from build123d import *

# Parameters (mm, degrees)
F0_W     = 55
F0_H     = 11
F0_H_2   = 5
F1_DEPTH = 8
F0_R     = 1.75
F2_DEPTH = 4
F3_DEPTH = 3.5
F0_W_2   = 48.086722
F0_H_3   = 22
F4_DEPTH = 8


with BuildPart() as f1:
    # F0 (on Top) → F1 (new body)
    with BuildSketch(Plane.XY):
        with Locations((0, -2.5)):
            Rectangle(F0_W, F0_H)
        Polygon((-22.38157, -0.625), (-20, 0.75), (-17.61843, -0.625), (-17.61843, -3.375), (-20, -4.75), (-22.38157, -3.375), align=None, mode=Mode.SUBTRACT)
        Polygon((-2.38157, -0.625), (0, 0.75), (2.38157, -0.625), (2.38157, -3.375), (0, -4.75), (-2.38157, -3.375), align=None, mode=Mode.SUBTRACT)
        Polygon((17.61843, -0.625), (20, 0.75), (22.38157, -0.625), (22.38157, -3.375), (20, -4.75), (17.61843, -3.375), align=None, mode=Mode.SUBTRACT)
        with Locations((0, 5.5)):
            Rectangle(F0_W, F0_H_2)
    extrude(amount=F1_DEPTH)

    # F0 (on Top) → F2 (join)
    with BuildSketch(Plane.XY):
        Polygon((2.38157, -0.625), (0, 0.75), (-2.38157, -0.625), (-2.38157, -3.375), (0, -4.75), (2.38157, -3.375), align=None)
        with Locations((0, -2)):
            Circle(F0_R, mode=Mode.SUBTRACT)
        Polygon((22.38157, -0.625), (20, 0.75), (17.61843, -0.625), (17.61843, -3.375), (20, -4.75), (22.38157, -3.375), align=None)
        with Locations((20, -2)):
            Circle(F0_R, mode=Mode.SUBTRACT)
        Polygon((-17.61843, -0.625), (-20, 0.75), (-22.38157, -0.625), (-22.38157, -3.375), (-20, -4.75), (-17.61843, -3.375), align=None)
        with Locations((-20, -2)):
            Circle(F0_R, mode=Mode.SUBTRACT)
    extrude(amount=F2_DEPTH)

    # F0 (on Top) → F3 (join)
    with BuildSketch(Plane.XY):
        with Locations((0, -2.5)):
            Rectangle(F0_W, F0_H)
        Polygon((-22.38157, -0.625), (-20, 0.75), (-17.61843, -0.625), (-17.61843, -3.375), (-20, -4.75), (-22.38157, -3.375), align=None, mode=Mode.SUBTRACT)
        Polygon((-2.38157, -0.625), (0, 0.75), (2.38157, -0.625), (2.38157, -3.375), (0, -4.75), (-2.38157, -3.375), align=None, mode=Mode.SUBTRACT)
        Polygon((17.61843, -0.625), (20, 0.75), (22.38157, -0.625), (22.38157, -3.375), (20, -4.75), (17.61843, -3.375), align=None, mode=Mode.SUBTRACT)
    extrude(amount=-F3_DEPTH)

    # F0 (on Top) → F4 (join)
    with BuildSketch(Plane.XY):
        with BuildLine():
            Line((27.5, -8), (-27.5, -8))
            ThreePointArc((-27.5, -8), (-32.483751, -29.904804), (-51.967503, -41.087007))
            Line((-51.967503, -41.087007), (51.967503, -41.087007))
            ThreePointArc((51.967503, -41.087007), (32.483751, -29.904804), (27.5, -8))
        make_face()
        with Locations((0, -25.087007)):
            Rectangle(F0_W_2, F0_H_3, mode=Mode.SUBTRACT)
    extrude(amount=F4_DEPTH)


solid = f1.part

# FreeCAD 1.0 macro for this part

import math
import FreeCAD as App
import Part
import Sketcher
from FreeCAD import Vector
Q = App.Units.Quantity

doc = App.newDocument("Part")
body = doc.addObject("PartDesign::Body", "Body")

# Sketch on XY plane
sketch1 = body.newObject("Sketcher::SketchObject", "Sketch")
sketch1.AttachmentSupport = (doc.getObject("XY_Plane"), [""])
sketch1.MapMode = "FlatFace"
sketch1.addGeometry([
    Part.LineSegment(Vector(-27.5, -8, 0), Vector(27.5, -8, 0)),  # 0
    Part.LineSegment(Vector(27.5, -8, 0), Vector(27.5, 8, 0)),  # 1
    Part.LineSegment(Vector(27.5, 8, 0), Vector(-27.5, 8, 0)),  # 2
    Part.LineSegment(Vector(-27.5, 8, 0), Vector(-27.5, -8, 0)),  # 3
    Part.LineSegment(Vector(-22.4, -3.4, 0), Vector(-22.4, -0.6, 0)),  # 4
    Part.LineSegment(Vector(-22.4, -0.6, 0), Vector(-20, 0.8, 0)),  # 5
    Part.LineSegment(Vector(-20, 0.8, 0), Vector(-17.6, -0.6, 0)),  # 6
    Part.LineSegment(Vector(-17.6, -0.6, 0), Vector(-17.6, -3.4, 0)),  # 7
    Part.LineSegment(Vector(-17.6, -3.4, 0), Vector(-20, -4.8, 0)),  # 8
    Part.LineSegment(Vector(-20, -4.8, 0), Vector(-22.4, -3.4, 0)),  # 9
    Part.LineSegment(Vector(-2.4, -3.4, 0), Vector(-2.4, -0.6, 0)),  # 10
    Part.LineSegment(Vector(-2.4, -0.6, 0), Vector(0, 0.8, 0)),  # 11
    Part.LineSegment(Vector(0, 0.8, 0), Vector(2.4, -0.6, 0)),  # 12
    Part.LineSegment(Vector(2.4, -0.6, 0), Vector(2.4, -3.4, 0)),  # 13
    Part.LineSegment(Vector(2.4, -3.4, 0), Vector(0, -4.8, 0)),  # 14
    Part.LineSegment(Vector(0, -4.8, 0), Vector(-2.4, -3.4, 0)),  # 15
    Part.LineSegment(Vector(17.6, -3.4, 0), Vector(17.6, -0.6, 0)),  # 16
    Part.LineSegment(Vector(17.6, -0.6, 0), Vector(20, 0.8, 0)),  # 17
    Part.LineSegment(Vector(20, 0.8, 0), Vector(22.4, -0.6, 0)),  # 18
    Part.LineSegment(Vector(22.4, -0.6, 0), Vector(22.4, -3.4, 0)),  # 19
    Part.LineSegment(Vector(22.4, -3.4, 0), Vector(20, -4.8, 0)),  # 20
    Part.LineSegment(Vector(20, -4.8, 0), Vector(17.6, -3.4, 0)),  # 21
], False)
sketch1.addConstraint([
    Sketcher.Constraint("Coincident", 0, 2, 1, 1),
    Sketcher.Constraint("Coincident", 1, 2, 2, 1),
    Sketcher.Constraint("Coincident", 2, 2, 3, 1),
    Sketcher.Constraint("Coincident", 3, 2, 0, 1),
    Sketcher.Constraint("Coincident", 4, 2, 5, 1),
    Sketcher.Constraint("Coincident", 5, 2, 6, 1),
    Sketcher.Constraint("Coincident", 6, 2, 7, 1),
    Sketcher.Constraint("Coincident", 7, 2, 8, 1),
    Sketcher.Constraint("Coincident", 8, 2, 9, 1),
    Sketcher.Constraint("Coincident", 9, 2, 4, 1),
    Sketcher.Constraint("Coincident", 10, 2, 11, 1),
    Sketcher.Constraint("Coincident", 11, 2, 12, 1),
    Sketcher.Constraint("Coincident", 12, 2, 13, 1),
    Sketcher.Constraint("Coincident", 13, 2, 14, 1),
    Sketcher.Constraint("Coincident", 14, 2, 15, 1),
    Sketcher.Constraint("Coincident", 15, 2, 10, 1),
    Sketcher.Constraint("Coincident", 16, 2, 17, 1),
    Sketcher.Constraint("Coincident", 17, 2, 18, 1),
    Sketcher.Constraint("Coincident", 18, 2, 19, 1),
    Sketcher.Constraint("Coincident", 19, 2, 20, 1),
    Sketcher.Constraint("Coincident", 20, 2, 21, 1),
    Sketcher.Constraint("Coincident", 21, 2, 16, 1),
    Sketcher.Constraint("Horizontal", 0),
    Sketcher.Constraint("Vertical", 1),
    Sketcher.Constraint("Horizontal", 2),
    Sketcher.Constraint("Vertical", 3),
    Sketcher.Constraint("Vertical", 4),
    Sketcher.Constraint("Vertical", 7),
    Sketcher.Constraint("Vertical", 10),
    Sketcher.Constraint("Vertical", 13),
    Sketcher.Constraint("Vertical", 16),
    Sketcher.Constraint("Vertical", 19),
    Sketcher.Constraint("Symmetric", 0, 2, 2, 2, -1, 1),
    Sketcher.Constraint("Symmetric", 10, 2, 12, 2, -2),
    Sketcher.Constraint("Symmetric", 6, 2, 16, 2, -2),
    Sketcher.Constraint("Symmetric", 5, 2, 17, 2, -2),
    Sketcher.Constraint("Symmetric", 4, 2, 18, 2, -2),
    Sketcher.Constraint("Symmetric", 8, 2, 20, 2, -2),
    Sketcher.Constraint("PointOnObject", 11, 2, -2),
    Sketcher.Constraint("PointOnObject", 14, 2, -2),
    Sketcher.Constraint("Parallel", 5, 8),
    Sketcher.Constraint("Parallel", 6, 9),
    Sketcher.Constraint("Parallel", 8, 11),
    Sketcher.Constraint("Parallel", 9, 12),
    Sketcher.Constraint("Parallel", 11, 14),
    Sketcher.Constraint("Parallel", 12, 15),
    Sketcher.Constraint("Parallel", 17, 20),
    Sketcher.Constraint("Parallel", 18, 21),
    Sketcher.Constraint("Horizontal", 4, 2, 6, 2),
    Sketcher.Constraint("Horizontal", 7, 2, 9, 2),
    Sketcher.Constraint("Horizontal", 6, 2, 10, 2),
    Sketcher.Constraint("Horizontal", 5, 2, 11, 2),
    Sketcher.Constraint("Horizontal", 9, 2, 13, 2),
    Sketcher.Constraint("DistanceX", 0, 1, 0, 2, Q("55 mm")),
    Sketcher.Constraint("DistanceY", 1, 1, 1, 2, Q("16 mm")),
    Sketcher.Constraint("Angle", 5, Q("29.999999 deg")),
    Sketcher.Constraint("DistanceX", 5, 2, -1, 1, Q("20 mm")),
    Sketcher.Constraint("DistanceY", 4, 1, 4, 2, Q("2.75 mm")),
    Sketcher.Constraint("DistanceY", 8, 2, 5, 2, Q("5.5 mm")),
    Sketcher.Constraint("DistanceY", -1, 1, 5, 2, Q("0.75 mm")),
])
pad1 = body.newObject("PartDesign::Pad", "Pad")
pad1.Profile = sketch1
pad1.Length = 8

# Sketch on XY plane
sketch2 = body.newObject("Sketcher::SketchObject", "Sketch001")
sketch2.AttachmentSupport = (doc.getObject("XY_Plane"), [""])
sketch2.MapMode = "FlatFace"
sketch2.addGeometry([
    Part.LineSegment(Vector(2.4, -0.6, 0), Vector(0, 0.8, 0)),  # 0
    Part.LineSegment(Vector(0, 0.8, 0), Vector(-2.4, -0.6, 0)),  # 1
    Part.LineSegment(Vector(-2.4, -0.6, 0), Vector(-2.4, -3.4, 0)),  # 2
    Part.LineSegment(Vector(-2.4, -3.4, 0), Vector(0, -4.8, 0)),  # 3
    Part.LineSegment(Vector(0, -4.8, 0), Vector(2.4, -3.4, 0)),  # 4
    Part.LineSegment(Vector(2.4, -3.4, 0), Vector(2.4, -0.6, 0)),  # 5
    Part.Circle(Vector(0, -2, 0), Vector(0, 0, 1), 1.8),  # 6
    Part.LineSegment(Vector(22.4, -0.6, 0), Vector(20, 0.8, 0)),  # 7
    Part.LineSegment(Vector(20, 0.8, 0), Vector(17.6, -0.6, 0)),  # 8
    Part.LineSegment(Vector(17.6, -0.6, 0), Vector(17.6, -3.4, 0)),  # 9
    Part.LineSegment(Vector(17.6, -3.4, 0), Vector(20, -4.8, 0)),  # 10
    Part.LineSegment(Vector(20, -4.8, 0), Vector(22.4, -3.4, 0)),  # 11
    Part.LineSegment(Vector(22.4, -3.4, 0), Vector(22.4, -0.6, 0)),  # 12
    Part.Circle(Vector(20, -2, 0), Vector(0, 0, 1), 1.8),  # 13
    Part.LineSegment(Vector(-17.6, -0.6, 0), Vector(-20, 0.8, 0)),  # 14
    Part.LineSegment(Vector(-20, 0.8, 0), Vector(-22.4, -0.6, 0)),  # 15
    Part.LineSegment(Vector(-22.4, -0.6, 0), Vector(-22.4, -3.4, 0)),  # 16
    Part.LineSegment(Vector(-22.4, -3.4, 0), Vector(-20, -4.8, 0)),  # 17
    Part.LineSegment(Vector(-20, -4.8, 0), Vector(-17.6, -3.4, 0)),  # 18
    Part.LineSegment(Vector(-17.6, -3.4, 0), Vector(-17.6, -0.6, 0)),  # 19
    Part.Circle(Vector(-20, -2, 0), Vector(0, 0, 1), 1.8),  # 20
], False)
sketch2.addConstraint([
    Sketcher.Constraint("Coincident", 0, 2, 1, 1),
    Sketcher.Constraint("Coincident", 1, 2, 2, 1),
    Sketcher.Constraint("Coincident", 2, 2, 3, 1),
    Sketcher.Constraint("Coincident", 3, 2, 4, 1),
    Sketcher.Constraint("Coincident", 4, 2, 5, 1),
    Sketcher.Constraint("Coincident", 5, 2, 0, 1),
    Sketcher.Constraint("Coincident", 7, 2, 8, 1),
    Sketcher.Constraint("Coincident", 8, 2, 9, 1),
    Sketcher.Constraint("Coincident", 9, 2, 10, 1),
    Sketcher.Constraint("Coincident", 10, 2, 11, 1),
    Sketcher.Constraint("Coincident", 11, 2, 12, 1),
    Sketcher.Constraint("Coincident", 12, 2, 7, 1),
    Sketcher.Constraint("Coincident", 14, 2, 15, 1),
    Sketcher.Constraint("Coincident", 15, 2, 16, 1),
    Sketcher.Constraint("Coincident", 16, 2, 17, 1),
    Sketcher.Constraint("Coincident", 17, 2, 18, 1),
    Sketcher.Constraint("Coincident", 18, 2, 19, 1),
    Sketcher.Constraint("Coincident", 19, 2, 14, 1),
    Sketcher.Constraint("Vertical", 2),
    Sketcher.Constraint("Vertical", 5),
    Sketcher.Constraint("Vertical", 9),
    Sketcher.Constraint("Vertical", 12),
    Sketcher.Constraint("Vertical", 16),
    Sketcher.Constraint("Vertical", 19),
    Sketcher.Constraint("Equal", 6, 13),
    Sketcher.Constraint("Equal", 13, 20),
    Sketcher.Constraint("Symmetric", 13, 3, 20, 3, -2),
    Sketcher.Constraint("Symmetric", 2, 2, 4, 2, -2),
    Sketcher.Constraint("Symmetric", 7, 2, 14, 2, -2),
    Sketcher.Constraint("Symmetric", 12, 2, 15, 2, -2),
    Sketcher.Constraint("Symmetric", 10, 2, 17, 2, -2),
    Sketcher.Constraint("Symmetric", 9, 2, 18, 2, -2),
    Sketcher.Constraint("PointOnObject", 6, 3, -2),
    Sketcher.Constraint("PointOnObject", 0, 2, -2),
    Sketcher.Constraint("PointOnObject", 3, 2, -2),
    Sketcher.Constraint("Parallel", 0, 3),
    Sketcher.Constraint("Parallel", 1, 4),
    Sketcher.Constraint("Parallel", 3, 7),
    Sketcher.Constraint("Parallel", 4, 8),
    Sketcher.Constraint("Parallel", 7, 10),
    Sketcher.Constraint("Parallel", 8, 11),
    Sketcher.Constraint("Parallel", 10, 14),
    Sketcher.Constraint("Parallel", 14, 17),
    Sketcher.Constraint("Horizontal", 6, 3, 13, 3),
    Sketcher.Constraint("Horizontal", 0, 2, 7, 2),
    Sketcher.Constraint("Horizontal", 5, 2, 8, 2),
    Sketcher.Constraint("Horizontal", 4, 2, 9, 2),
    Sketcher.Constraint("Horizontal", 3, 2, 10, 2),
    Sketcher.Constraint("Horizontal", 9, 2, 11, 2),
    Sketcher.Constraint("Vertical", 13, 3, 7, 2),
    Sketcher.Constraint("Diameter", 6, Q("3.5 mm")),
    Sketcher.Constraint("Angle", 0, Q("150.000001 deg")),
    Sketcher.Constraint("DistanceY", 6, 3, -1, 1, Q("2 mm")),
    Sketcher.Constraint("DistanceX", -1, 1, 13, 3, Q("20 mm")),
    Sketcher.Constraint("DistanceY", 2, 2, 2, 1, Q("2.75 mm")),
    Sketcher.Constraint("DistanceY", 3, 2, 0, 2, Q("5.5 mm")),
    Sketcher.Constraint("DistanceY", -1, 1, 0, 2, Q("0.75 mm")),
])
pad2 = body.newObject("PartDesign::Pad", "Pad001")
pad2.Profile = sketch2
pad2.Length = 4

# Sketch on XY plane
sketch3 = body.newObject("Sketcher::SketchObject", "Sketch002")
sketch3.AttachmentSupport = (doc.getObject("XY_Plane"), [""])
sketch3.MapMode = "FlatFace"
sketch3.addGeometry([
    Part.LineSegment(Vector(-27.5, 3, 0), Vector(-27.5, -8, 0)),  # 0
    Part.LineSegment(Vector(-27.5, -8, 0), Vector(27.5, -8, 0)),  # 1
    Part.LineSegment(Vector(27.5, -8, 0), Vector(27.5, 3, 0)),  # 2
    Part.LineSegment(Vector(27.5, 3, 0), Vector(-27.5, 3, 0)),  # 3
    Part.LineSegment(Vector(-22.4, -3.4, 0), Vector(-22.4, -0.6, 0)),  # 4
    Part.LineSegment(Vector(-22.4, -0.6, 0), Vector(-20, 0.8, 0)),  # 5
    Part.LineSegment(Vector(-20, 0.8, 0), Vector(-17.6, -0.6, 0)),  # 6
    Part.LineSegment(Vector(-17.6, -0.6, 0), Vector(-17.6, -3.4, 0)),  # 7
    Part.LineSegment(Vector(-17.6, -3.4, 0), Vector(-20, -4.8, 0)),  # 8
    Part.LineSegment(Vector(-20, -4.8, 0), Vector(-22.4, -3.4, 0)),  # 9
    Part.LineSegment(Vector(-2.4, -3.4, 0), Vector(-2.4, -0.6, 0)),  # 10
    Part.LineSegment(Vector(-2.4, -0.6, 0), Vector(0, 0.8, 0)),  # 11
    Part.LineSegment(Vector(0, 0.8, 0), Vector(2.4, -0.6, 0)),  # 12
    Part.LineSegment(Vector(2.4, -0.6, 0), Vector(2.4, -3.4, 0)),  # 13
    Part.LineSegment(Vector(2.4, -3.4, 0), Vector(0, -4.8, 0)),  # 14
    Part.LineSegment(Vector(0, -4.8, 0), Vector(-2.4, -3.4, 0)),  # 15
    Part.LineSegment(Vector(17.6, -3.4, 0), Vector(17.6, -0.6, 0)),  # 16
    Part.LineSegment(Vector(17.6, -0.6, 0), Vector(20, 0.8, 0)),  # 17
    Part.LineSegment(Vector(20, 0.8, 0), Vector(22.4, -0.6, 0)),  # 18
    Part.LineSegment(Vector(22.4, -0.6, 0), Vector(22.4, -3.4, 0)),  # 19
    Part.LineSegment(Vector(22.4, -3.4, 0), Vector(20, -4.8, 0)),  # 20
    Part.LineSegment(Vector(20, -4.8, 0), Vector(17.6, -3.4, 0)),  # 21
], False)
sketch3.addConstraint([
    Sketcher.Constraint("Coincident", 0, 2, 1, 1),
    Sketcher.Constraint("Coincident", 1, 2, 2, 1),
    Sketcher.Constraint("Coincident", 2, 2, 3, 1),
    Sketcher.Constraint("Coincident", 3, 2, 0, 1),
    Sketcher.Constraint("Coincident", 4, 2, 5, 1),
    Sketcher.Constraint("Coincident", 5, 2, 6, 1),
    Sketcher.Constraint("Coincident", 6, 2, 7, 1),
    Sketcher.Constraint("Coincident", 7, 2, 8, 1),
    Sketcher.Constraint("Coincident", 8, 2, 9, 1),
    Sketcher.Constraint("Coincident", 9, 2, 4, 1),
    Sketcher.Constraint("Coincident", 10, 2, 11, 1),
    Sketcher.Constraint("Coincident", 11, 2, 12, 1),
    Sketcher.Constraint("Coincident", 12, 2, 13, 1),
    Sketcher.Constraint("Coincident", 13, 2, 14, 1),
    Sketcher.Constraint("Coincident", 14, 2, 15, 1),
    Sketcher.Constraint("Coincident", 15, 2, 10, 1),
    Sketcher.Constraint("Coincident", 16, 2, 17, 1),
    Sketcher.Constraint("Coincident", 17, 2, 18, 1),
    Sketcher.Constraint("Coincident", 18, 2, 19, 1),
    Sketcher.Constraint("Coincident", 19, 2, 20, 1),
    Sketcher.Constraint("Coincident", 20, 2, 21, 1),
    Sketcher.Constraint("Coincident", 21, 2, 16, 1),
    Sketcher.Constraint("Vertical", 0),
    Sketcher.Constraint("Horizontal", 1),
    Sketcher.Constraint("Vertical", 2),
    Sketcher.Constraint("Horizontal", 3),
    Sketcher.Constraint("Vertical", 4),
    Sketcher.Constraint("Vertical", 7),
    Sketcher.Constraint("Vertical", 10),
    Sketcher.Constraint("Vertical", 13),
    Sketcher.Constraint("Vertical", 16),
    Sketcher.Constraint("Vertical", 19),
    Sketcher.Constraint("Symmetric", 10, 2, 12, 2, -2),
    Sketcher.Constraint("Symmetric", 6, 2, 16, 2, -2),
    Sketcher.Constraint("Symmetric", 5, 2, 17, 2, -2),
    Sketcher.Constraint("Symmetric", 4, 2, 18, 2, -2),
    Sketcher.Constraint("Symmetric", 8, 2, 20, 2, -2),
    Sketcher.Constraint("PointOnObject", 11, 2, -2),
    Sketcher.Constraint("PointOnObject", 14, 2, -2),
    Sketcher.Constraint("Parallel", 5, 8),
    Sketcher.Constraint("Parallel", 6, 9),
    Sketcher.Constraint("Parallel", 8, 11),
    Sketcher.Constraint("Parallel", 9, 12),
    Sketcher.Constraint("Parallel", 11, 14),
    Sketcher.Constraint("Parallel", 12, 15),
    Sketcher.Constraint("Parallel", 17, 20),
    Sketcher.Constraint("Parallel", 18, 21),
    Sketcher.Constraint("Horizontal", 4, 2, 6, 2),
    Sketcher.Constraint("Horizontal", 7, 2, 9, 2),
    Sketcher.Constraint("Horizontal", 6, 2, 10, 2),
    Sketcher.Constraint("Horizontal", 5, 2, 11, 2),
    Sketcher.Constraint("Horizontal", 9, 2, 13, 2),
    Sketcher.Constraint("DistanceX", 1, 1, 1, 2, Q("55 mm")),
    Sketcher.Constraint("DistanceY", 0, 2, 0, 1, Q("11 mm")),
    Sketcher.Constraint("Angle", 5, Q("29.999999 deg")),
    Sketcher.Constraint("DistanceY", 0, 2, -1, 1, Q("8 mm")),
    Sketcher.Constraint("DistanceX", 5, 2, -1, 1, Q("20 mm")),
    Sketcher.Constraint("DistanceY", 4, 1, 4, 2, Q("2.75 mm")),
    Sketcher.Constraint("DistanceX", 0, 2, -1, 1, Q("27.5 mm")),
    Sketcher.Constraint("DistanceY", 8, 2, 5, 2, Q("5.5 mm")),
    Sketcher.Constraint("DistanceY", -1, 1, 5, 2, Q("0.75 mm")),
])
pad3 = body.newObject("PartDesign::Pad", "Pad002")
pad3.Profile = sketch3
pad3.Length = 3.5
pad3.Reversed = True

# Sketch on XY plane
sketch4 = body.newObject("Sketcher::SketchObject", "Sketch003")
sketch4.AttachmentSupport = (doc.getObject("XY_Plane"), [""])
sketch4.MapMode = "FlatFace"
sketch4.addGeometry([
    Part.LineSegment(Vector(28, -8, 0), Vector(-28, -8, 0)),  # 0
    Part.ArcOfCircle(Part.Circle(Vector(-55, -13, 0), Vector(0, 0, 1), 28), math.radians(-84), math.radians(11)),  # 1
    Part.LineSegment(Vector(-52, -41, 0), Vector(52, -41, 0)),  # 2
    Part.ArcOfCircle(Part.Circle(Vector(55, -13, 0), Vector(0, 0, 1), 28), math.radians(169), math.radians(264)),  # 3
    Part.LineSegment(Vector(24, -36, 0), Vector(-24, -36, 0)),  # 4
    Part.LineSegment(Vector(-24, -36, 0), Vector(-24, -14, 0)),  # 5
    Part.LineSegment(Vector(-24, -14, 0), Vector(24, -14, 0)),  # 6
    Part.LineSegment(Vector(24, -14, 0), Vector(24, -36, 0)),  # 7
], False)
sketch4.addConstraint([
    Sketcher.Constraint("Coincident", 0, 2, 1, 2),
    Sketcher.Constraint("Coincident", 1, 1, 2, 1),
    Sketcher.Constraint("Coincident", 2, 2, 3, 2),
    Sketcher.Constraint("Coincident", 3, 1, 0, 1),
    Sketcher.Constraint("Coincident", 4, 2, 5, 1),
    Sketcher.Constraint("Coincident", 5, 2, 6, 1),
    Sketcher.Constraint("Coincident", 6, 2, 7, 1),
    Sketcher.Constraint("Coincident", 7, 2, 4, 1),
    Sketcher.Constraint("Horizontal", 0),
    Sketcher.Constraint("Horizontal", 2),
    Sketcher.Constraint("Horizontal", 4),
    Sketcher.Constraint("Vertical", 5),
    Sketcher.Constraint("Horizontal", 6),
    Sketcher.Constraint("Vertical", 7),
    Sketcher.Constraint("Equal", 1, 3),
    Sketcher.Constraint("Symmetric", 1, 3, 3, 3, -2),
    Sketcher.Constraint("DistanceX", 0, 2, 0, 1, Q("55 mm")),
    Sketcher.Constraint("DistanceY", 5, 1, 5, 2, Q("22 mm")),
    Sketcher.Constraint("DistanceY", 0, 2, -1, 1, Q("8 mm")),
    Sketcher.Constraint("DistanceY", 1, 1, 4, 2, Q("5 mm")),
    Sketcher.Constraint("Radius", 1, Q("27.983752 mm")),
    Sketcher.Constraint("DistanceX", 2, 1, 2, 2, Q("103.935006 mm")),
    Sketcher.Constraint("DistanceX", 4, 2, 4, 1, Q("48.086722 mm")),
    Sketcher.Constraint("DistanceX", 1, 3, -1, 1, Q("54.983751 mm")),
    Sketcher.Constraint("DistanceX", 4, 2, -1, 1, Q("24.043361 mm")),
])
pad4 = body.newObject("PartDesign::Pad", "Pad003")
pad4.Profile = sketch4
pad4.Length = 8

doc.recompute()
